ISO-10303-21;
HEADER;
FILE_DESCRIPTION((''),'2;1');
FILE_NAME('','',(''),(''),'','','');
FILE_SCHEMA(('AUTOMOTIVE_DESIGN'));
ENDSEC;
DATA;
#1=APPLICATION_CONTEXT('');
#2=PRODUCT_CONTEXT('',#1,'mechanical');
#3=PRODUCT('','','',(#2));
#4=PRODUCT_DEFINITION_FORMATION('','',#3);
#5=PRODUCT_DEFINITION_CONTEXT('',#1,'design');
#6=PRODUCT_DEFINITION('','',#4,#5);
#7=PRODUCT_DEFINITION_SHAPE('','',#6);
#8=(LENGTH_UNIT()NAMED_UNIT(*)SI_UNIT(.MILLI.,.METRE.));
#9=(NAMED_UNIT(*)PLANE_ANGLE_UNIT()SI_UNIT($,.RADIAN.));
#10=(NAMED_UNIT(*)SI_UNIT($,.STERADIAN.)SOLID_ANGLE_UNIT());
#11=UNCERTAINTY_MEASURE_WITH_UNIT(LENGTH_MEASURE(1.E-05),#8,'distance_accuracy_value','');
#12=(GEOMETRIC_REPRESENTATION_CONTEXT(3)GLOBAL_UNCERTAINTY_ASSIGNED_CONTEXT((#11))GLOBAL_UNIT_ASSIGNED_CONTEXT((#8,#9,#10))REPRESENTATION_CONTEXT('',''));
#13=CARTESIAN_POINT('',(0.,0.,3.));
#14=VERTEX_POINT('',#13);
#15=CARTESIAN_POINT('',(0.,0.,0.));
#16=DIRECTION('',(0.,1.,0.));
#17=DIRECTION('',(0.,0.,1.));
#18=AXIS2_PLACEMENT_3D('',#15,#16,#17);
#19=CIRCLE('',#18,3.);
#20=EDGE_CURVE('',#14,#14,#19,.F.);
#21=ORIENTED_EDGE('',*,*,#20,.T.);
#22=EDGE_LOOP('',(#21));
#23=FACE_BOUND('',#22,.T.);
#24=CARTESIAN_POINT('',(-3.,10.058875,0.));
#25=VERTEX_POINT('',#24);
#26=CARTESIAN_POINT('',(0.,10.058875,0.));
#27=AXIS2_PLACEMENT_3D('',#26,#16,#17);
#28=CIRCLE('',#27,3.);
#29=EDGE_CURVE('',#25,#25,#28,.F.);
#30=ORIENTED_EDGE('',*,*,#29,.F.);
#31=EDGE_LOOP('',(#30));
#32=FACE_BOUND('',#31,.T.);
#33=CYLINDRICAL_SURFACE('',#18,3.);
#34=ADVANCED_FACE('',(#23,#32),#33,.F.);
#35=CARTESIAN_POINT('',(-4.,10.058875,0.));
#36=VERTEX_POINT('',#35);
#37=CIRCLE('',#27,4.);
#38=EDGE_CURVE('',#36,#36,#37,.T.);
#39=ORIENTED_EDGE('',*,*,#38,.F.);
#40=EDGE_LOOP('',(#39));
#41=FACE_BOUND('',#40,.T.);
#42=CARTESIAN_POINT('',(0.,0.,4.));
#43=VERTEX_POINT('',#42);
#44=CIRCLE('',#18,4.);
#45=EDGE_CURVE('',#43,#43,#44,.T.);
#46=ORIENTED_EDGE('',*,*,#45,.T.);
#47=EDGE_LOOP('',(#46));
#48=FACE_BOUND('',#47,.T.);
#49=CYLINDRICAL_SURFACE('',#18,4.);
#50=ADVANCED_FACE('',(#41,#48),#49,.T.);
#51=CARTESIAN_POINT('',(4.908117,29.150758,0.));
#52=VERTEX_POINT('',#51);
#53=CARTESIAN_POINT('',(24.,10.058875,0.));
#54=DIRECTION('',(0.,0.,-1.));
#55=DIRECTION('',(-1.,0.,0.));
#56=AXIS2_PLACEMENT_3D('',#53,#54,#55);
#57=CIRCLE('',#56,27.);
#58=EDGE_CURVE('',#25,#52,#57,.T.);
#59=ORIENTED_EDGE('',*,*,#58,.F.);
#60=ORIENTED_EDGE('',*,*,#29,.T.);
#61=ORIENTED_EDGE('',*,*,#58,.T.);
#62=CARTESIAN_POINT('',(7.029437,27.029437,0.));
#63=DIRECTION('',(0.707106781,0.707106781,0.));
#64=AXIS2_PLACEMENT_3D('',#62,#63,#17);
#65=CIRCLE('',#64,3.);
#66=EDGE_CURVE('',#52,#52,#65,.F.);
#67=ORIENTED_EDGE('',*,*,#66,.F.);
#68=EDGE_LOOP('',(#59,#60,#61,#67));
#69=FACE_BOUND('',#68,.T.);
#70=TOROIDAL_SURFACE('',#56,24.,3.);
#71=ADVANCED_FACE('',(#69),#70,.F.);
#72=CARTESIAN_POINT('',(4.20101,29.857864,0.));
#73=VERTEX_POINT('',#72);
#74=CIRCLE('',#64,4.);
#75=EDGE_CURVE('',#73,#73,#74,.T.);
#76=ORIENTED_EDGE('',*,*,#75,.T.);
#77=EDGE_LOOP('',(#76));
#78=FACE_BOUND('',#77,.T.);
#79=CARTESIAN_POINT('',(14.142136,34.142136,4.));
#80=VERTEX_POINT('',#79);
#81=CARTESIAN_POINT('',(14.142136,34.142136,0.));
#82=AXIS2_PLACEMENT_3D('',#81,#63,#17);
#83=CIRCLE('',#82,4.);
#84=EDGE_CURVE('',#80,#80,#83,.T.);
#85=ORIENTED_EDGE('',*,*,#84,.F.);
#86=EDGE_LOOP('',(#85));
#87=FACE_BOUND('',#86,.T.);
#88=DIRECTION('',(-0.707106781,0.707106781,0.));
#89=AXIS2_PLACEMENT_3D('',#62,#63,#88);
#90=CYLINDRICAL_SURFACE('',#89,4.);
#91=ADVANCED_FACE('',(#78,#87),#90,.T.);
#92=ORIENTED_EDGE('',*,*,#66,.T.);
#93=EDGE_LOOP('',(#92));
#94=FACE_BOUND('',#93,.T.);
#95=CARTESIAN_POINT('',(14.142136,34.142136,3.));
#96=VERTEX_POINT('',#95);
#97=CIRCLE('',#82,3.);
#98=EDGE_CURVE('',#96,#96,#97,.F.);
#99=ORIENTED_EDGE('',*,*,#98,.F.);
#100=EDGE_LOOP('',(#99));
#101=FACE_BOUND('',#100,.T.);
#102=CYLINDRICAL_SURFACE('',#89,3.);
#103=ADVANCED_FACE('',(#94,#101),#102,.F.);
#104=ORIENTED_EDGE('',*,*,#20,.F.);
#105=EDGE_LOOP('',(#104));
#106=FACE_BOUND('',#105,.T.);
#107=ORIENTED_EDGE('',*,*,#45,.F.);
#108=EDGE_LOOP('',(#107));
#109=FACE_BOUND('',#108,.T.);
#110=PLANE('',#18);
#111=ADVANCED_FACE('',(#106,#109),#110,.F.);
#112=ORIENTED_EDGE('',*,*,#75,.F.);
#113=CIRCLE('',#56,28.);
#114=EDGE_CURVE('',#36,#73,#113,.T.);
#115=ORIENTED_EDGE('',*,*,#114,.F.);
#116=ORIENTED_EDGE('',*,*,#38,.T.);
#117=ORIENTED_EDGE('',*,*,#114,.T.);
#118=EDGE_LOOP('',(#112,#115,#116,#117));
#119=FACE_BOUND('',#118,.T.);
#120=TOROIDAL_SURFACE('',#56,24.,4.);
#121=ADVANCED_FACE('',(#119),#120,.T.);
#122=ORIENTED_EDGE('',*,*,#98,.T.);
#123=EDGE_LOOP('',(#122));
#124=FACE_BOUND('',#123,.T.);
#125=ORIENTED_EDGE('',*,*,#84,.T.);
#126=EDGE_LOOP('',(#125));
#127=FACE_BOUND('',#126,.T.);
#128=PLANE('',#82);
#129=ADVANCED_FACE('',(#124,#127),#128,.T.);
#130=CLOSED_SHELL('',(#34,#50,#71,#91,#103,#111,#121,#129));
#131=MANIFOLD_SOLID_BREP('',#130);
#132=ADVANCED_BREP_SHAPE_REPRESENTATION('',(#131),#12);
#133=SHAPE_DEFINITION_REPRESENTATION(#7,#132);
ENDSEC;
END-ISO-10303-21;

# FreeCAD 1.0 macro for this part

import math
import FreeCAD as App
import Part
import Sketcher
from FreeCAD import Vector
Q = App.Units.Quantity

doc = App.newDocument("Part")
body = doc.addObject("PartDesign::Body", "Body")

sketch1 = body.newObject("Sketcher::SketchObject", "Sketch")
sketch1.AttachmentSupport = (doc.getObject("XZ_Plane"), [""])
sketch1.MapMode = "FlatFace"
sketch1.addGeometry([
    Part.Circle(Vector(0, 0, 0), Vector(0, 0, 1), 4),
    Part.Circle(Vector(0, 0, 0), Vector(0, 0, 1), 3),
], False)
sketch1.addConstraint([
    Sketcher.Constraint("Coincident", 0, 3, -1, 1),
    Sketcher.Constraint("Coincident", 1, 3, -1, 1),
    Sketcher.Constraint("Diameter", 0, 8.0),
    Sketcher.Constraint("Diameter", 1, 6.0),
])

sketch2 = body.newObject("Sketcher::SketchObject", "Sketch001")
sketch2.AttachmentSupport = (doc.getObject("XY_Plane"), [""])
sketch2.MapMode = "FlatFace"
sketch2.addGeometry([
    Part.LineSegment(Vector(0, 0, 0), Vector(0, 10.058875, 0)),
    Part.ArcOfCircle(Part.Circle(Vector(24, 10.058875, 0), Vector(0, 0, 1), 24), math.radians(135), math.radians(180)),
    Part.LineSegment(Vector(7.029437, 27.029437, 0), Vector(14.142136, 34.142136, 0)),
], False)
sketch2.addConstraint([
    Sketcher.Constraint("Tangent", 0, 2, 1, 2),
    Sketcher.Constraint("Tangent", 1, 1, 2, 1),
    Sketcher.Constraint("Vertical", 0),
    Sketcher.Constraint("Coincident", 0, 1, -1, 1),
    Sketcher.Constraint("Radius", 1, 24.0),
    Sketcher.Constraint("Angle", 2, Q("45 deg")),
    Sketcher.Constraint("DistanceX", 1, 1, 2, 2, 7.112698),
    Sketcher.Constraint("DistanceY", 0, 1, 0, 2, 10.058875),
])
doc.recompute()

additivepipe = body.newObject("PartDesign::AdditivePipe", "AdditivePipe")
additivepipe.Profile = sketch1
additivepipe.Spine = (sketch2, ["Edge1", "Edge2", "Edge3"])

doc.recompute()
